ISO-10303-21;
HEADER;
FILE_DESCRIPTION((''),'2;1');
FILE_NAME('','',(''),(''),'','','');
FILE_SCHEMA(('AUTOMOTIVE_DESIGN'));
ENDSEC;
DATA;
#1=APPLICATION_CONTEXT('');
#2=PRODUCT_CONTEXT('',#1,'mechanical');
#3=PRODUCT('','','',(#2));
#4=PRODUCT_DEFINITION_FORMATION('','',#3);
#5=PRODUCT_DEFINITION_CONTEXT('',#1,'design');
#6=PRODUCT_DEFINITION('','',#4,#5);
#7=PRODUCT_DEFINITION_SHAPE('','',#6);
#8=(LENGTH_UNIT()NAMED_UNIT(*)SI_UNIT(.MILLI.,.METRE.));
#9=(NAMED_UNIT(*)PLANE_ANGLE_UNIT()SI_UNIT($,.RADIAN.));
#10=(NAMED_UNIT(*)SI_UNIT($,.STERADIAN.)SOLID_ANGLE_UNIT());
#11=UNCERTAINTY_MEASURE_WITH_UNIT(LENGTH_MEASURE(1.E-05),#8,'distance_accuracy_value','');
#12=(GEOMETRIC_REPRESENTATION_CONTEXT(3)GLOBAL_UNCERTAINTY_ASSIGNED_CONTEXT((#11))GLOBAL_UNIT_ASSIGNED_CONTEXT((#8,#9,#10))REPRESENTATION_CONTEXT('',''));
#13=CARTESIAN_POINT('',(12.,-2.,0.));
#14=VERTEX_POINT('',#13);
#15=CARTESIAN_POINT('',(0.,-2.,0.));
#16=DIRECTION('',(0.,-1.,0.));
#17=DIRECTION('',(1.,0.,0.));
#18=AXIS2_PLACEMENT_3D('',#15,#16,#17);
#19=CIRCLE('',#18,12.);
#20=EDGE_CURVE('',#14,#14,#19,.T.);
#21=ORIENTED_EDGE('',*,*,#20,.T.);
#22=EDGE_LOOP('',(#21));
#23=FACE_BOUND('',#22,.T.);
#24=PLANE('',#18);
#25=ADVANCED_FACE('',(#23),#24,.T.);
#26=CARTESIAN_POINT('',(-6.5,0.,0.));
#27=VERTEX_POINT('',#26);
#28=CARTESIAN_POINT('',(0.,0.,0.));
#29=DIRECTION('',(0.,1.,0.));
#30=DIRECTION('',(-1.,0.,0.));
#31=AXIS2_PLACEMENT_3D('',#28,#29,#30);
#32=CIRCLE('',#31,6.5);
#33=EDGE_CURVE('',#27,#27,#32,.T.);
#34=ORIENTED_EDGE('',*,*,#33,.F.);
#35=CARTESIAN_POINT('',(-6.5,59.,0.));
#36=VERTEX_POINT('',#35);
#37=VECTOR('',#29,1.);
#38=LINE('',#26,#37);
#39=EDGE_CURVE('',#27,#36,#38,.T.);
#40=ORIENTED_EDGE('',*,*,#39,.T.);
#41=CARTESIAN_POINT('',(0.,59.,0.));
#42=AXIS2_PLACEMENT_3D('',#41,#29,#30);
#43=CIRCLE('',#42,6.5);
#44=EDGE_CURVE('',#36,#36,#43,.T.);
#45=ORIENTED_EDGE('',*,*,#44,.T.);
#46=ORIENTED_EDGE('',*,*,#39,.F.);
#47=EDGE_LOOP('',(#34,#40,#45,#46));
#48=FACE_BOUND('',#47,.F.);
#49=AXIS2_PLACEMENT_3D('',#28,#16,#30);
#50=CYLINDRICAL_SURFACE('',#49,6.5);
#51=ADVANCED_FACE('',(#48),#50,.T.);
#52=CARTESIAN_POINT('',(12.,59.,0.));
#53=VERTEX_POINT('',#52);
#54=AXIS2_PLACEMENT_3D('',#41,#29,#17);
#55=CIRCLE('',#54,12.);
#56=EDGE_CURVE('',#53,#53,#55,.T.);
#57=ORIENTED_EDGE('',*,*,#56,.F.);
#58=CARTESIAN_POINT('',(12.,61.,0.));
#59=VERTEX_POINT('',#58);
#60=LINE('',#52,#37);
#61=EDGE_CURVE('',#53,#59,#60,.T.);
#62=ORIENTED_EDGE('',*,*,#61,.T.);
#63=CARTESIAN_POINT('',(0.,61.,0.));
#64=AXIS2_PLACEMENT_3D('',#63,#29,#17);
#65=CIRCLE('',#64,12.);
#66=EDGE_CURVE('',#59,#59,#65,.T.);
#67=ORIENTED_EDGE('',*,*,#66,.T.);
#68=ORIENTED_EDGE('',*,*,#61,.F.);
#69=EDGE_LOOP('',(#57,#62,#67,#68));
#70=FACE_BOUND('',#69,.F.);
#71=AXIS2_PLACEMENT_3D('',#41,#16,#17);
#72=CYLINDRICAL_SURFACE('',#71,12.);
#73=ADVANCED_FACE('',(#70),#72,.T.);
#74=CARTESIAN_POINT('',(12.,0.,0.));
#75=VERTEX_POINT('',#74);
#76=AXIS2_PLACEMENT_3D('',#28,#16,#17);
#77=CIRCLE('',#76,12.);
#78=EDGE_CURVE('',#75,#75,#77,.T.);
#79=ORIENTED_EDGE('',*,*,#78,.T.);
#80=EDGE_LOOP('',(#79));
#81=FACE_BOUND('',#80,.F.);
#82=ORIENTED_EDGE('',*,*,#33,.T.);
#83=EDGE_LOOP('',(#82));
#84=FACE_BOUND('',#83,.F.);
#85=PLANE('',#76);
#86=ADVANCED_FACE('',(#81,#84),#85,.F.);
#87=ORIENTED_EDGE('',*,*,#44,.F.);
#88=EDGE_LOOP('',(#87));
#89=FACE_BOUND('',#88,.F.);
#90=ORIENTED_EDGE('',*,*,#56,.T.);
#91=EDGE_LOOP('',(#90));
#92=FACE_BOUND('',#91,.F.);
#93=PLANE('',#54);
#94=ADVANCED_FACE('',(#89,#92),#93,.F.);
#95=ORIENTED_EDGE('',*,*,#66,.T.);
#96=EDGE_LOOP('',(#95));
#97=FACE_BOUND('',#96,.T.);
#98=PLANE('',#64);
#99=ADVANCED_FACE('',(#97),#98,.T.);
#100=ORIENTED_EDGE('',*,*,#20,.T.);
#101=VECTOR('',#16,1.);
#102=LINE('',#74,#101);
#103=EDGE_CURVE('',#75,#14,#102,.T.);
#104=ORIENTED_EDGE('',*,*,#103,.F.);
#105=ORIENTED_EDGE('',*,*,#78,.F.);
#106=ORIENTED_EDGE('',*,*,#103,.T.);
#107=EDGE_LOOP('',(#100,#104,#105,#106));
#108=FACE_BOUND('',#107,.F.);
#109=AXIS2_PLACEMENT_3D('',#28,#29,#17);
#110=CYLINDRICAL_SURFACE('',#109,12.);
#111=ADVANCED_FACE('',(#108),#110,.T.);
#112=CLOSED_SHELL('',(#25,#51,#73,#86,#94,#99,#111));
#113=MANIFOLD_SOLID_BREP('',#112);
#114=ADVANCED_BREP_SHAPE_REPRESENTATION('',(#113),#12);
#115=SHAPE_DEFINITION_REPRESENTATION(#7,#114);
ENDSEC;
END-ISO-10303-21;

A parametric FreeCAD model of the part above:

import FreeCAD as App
import Part
import Sketcher

V = App.Vector

doc = App.newDocument("Part")
body = doc.addObject("PartDesign::Body", "Body")

sketch1 = body.newObject("Sketcher::SketchObject", "Sketch")
sketch1.AttachmentSupport = (doc.getObject("XZ_Plane"), [""])
sketch1.MapMode = "FlatFace"
sketch1.addGeometry(Part.Circle(V(0, 0, 0), V(0, 0, 1), 6), False)
sketch1.addConstraint([
    Sketcher.Constraint("Coincident", 0, 3, -1, 1),
    Sketcher.Constraint("Diameter", 0, 13.0),
])
pad1 = body.newObject("PartDesign::Pad", "Pad")
pad1.Profile = sketch1
pad1.Length = 59
pad1.Reversed = True

sketch2 = body.newObject("Sketcher::SketchObject", "Sketch001")
sketch2.AttachmentSupport = (doc.getObject("XZ_Plane"), [""])
sketch2.MapMode = "FlatFace"
sketch2.AttachmentOffset = App.Placement(V(0, 0, -59), App.Rotation())
sketch2.addGeometry(Part.Circle(V(0, 0, 0), V(0, 0, 1), 12), False)
sketch2.addConstraint([
    Sketcher.Constraint("Coincident", 0, 3, -1, 1),
    Sketcher.Constraint("Diameter", 0, 24.0),
])
pad2 = body.newObject("PartDesign::Pad", "Pad001")
pad2.Profile = sketch2
pad2.Length = 2
pad2.Reversed = True

sketch3 = body.newObject("Sketcher::SketchObject", "Sketch002")
sketch3.AttachmentSupport = (doc.getObject("XZ_Plane"), [""])
sketch3.MapMode = "FlatFace"
sketch3.addGeometry(Part.Circle(V(0, 0, 0), V(0, 0, 1), 12), False)
sketch3.addConstraint([
    Sketcher.Constraint("Coincident", 0, 3, -1, 1),
    Sketcher.Constraint("Diameter", 0, 24.0),
])
pad3 = body.newObject("PartDesign::Pad", "Pad002")
pad3.Profile = sketch3
pad3.Length = 2

doc.recompute()
